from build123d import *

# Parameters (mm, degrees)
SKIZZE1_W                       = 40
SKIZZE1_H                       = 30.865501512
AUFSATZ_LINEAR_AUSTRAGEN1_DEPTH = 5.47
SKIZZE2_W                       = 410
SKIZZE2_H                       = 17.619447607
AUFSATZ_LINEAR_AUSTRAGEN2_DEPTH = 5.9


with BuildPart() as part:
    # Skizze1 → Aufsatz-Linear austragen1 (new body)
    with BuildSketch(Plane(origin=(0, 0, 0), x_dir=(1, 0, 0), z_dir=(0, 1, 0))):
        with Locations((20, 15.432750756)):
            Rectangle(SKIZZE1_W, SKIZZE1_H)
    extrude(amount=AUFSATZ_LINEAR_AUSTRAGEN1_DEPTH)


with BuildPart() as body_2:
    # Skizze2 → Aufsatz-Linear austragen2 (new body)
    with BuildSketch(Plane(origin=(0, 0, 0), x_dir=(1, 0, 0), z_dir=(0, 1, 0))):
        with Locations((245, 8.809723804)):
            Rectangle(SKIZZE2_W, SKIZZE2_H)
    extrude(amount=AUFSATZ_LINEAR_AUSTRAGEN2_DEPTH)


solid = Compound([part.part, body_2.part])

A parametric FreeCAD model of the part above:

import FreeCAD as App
import Part
import Sketcher
Q = App.Units.Quantity

doc = App.newDocument("Part")
body = doc.addObject("PartDesign::Body", "Body")

sketch1 = body.newObject("Sketcher::SketchObject", "Sketch")
sketch1.AttachmentSupport = (doc.getObject("XZ_Plane"), [""])
sketch1.MapMode = "FlatFace"
sketch1.addGeometry(Part.LineSegment(App.Vector(0, -31, 0), App.Vector(0, 0, 0)), False)
sketch1.addGeometry(Part.LineSegment(App.Vector(0, 0, 0), App.Vector(40, 0, 0)), False)
sketch1.addGeometry(Part.LineSegment(App.Vector(40, 0, 0), App.Vector(40, -31, 0)), False)
sketch1.addGeometry(Part.LineSegment(App.Vector(40, -31, 0), App.Vector(0, -31, 0)), False)
sketch1.addConstraint(Sketcher.Constraint("Coincident", 0, 2, 1, 1))
sketch1.addConstraint(Sketcher.Constraint("Coincident", 1, 2, 2, 1))
sketch1.addConstraint(Sketcher.Constraint("Coincident", 2, 2, 3, 1))
sketch1.addConstraint(Sketcher.Constraint("Coincident", 3, 2, 0, 1))
sketch1.addConstraint(Sketcher.Constraint("Vertical", 0))
sketch1.addConstraint(Sketcher.Constraint("Horizontal", 1))
sketch1.addConstraint(Sketcher.Constraint("Vertical", 2))
sketch1.addConstraint(Sketcher.Constraint("Horizontal", 3))
sketch1.addConstraint(Sketcher.Constraint("Coincident", 0, 2, -1, 1))
sketch1.addConstraint(Sketcher.Constraint("DistanceX", 1, 1, 1, 2, Q("40 mm")))
sketch1.addConstraint(Sketcher.Constraint("DistanceY", 0, 1, 0, 2, Q("30.865502 mm")))
pad1 = body.newObject("PartDesign::Pad", "Pad")
pad1.Profile = sketch1
pad1.Length = 5.47
pad1.Reversed = True
body2 = doc.addObject("PartDesign::Body", "Body001")

sketch2 = body2.newObject("Sketcher::SketchObject", "Sketch001")
sketch2.AttachmentSupport = (doc.getObject("XZ_Plane001"), [""])
sketch2.MapMode = "FlatFace"
sketch2.addGeometry(Part.LineSegment(App.Vector(40, -18, 0), App.Vector(40, 0, 0)), False)
sketch2.addGeometry(Part.LineSegment(App.Vector(40, 0, 0), App.Vector(450, 0, 0)), False)
sketch2.addGeometry(Part.LineSegment(App.Vector(450, 0, 0), App.Vector(450, -18, 0)), False)
sketch2.addGeometry(Part.LineSegment(App.Vector(450, -18, 0), App.Vector(40, -18, 0)), False)
sketch2.addConstraint(Sketcher.Constraint("Coincident", 0, 2, 1, 1))
sketch2.addConstraint(Sketcher.Constraint("Coincident", 1, 2, 2, 1))
sketch2.addConstraint(Sketcher.Constraint("Coincident", 2, 2, 3, 1))
sketch2.addConstraint(Sketcher.Constraint("Coincident", 3, 2, 0, 1))
sketch2.addConstraint(Sketcher.Constraint("Vertical", 0))
sketch2.addConstraint(Sketcher.Constraint("Horizontal", 1))
sketch2.addConstraint(Sketcher.Constraint("Vertical", 2))
sketch2.addConstraint(Sketcher.Constraint("Horizontal", 3))
sketch2.addConstraint(Sketcher.Constraint("PointOnObject", 0, 2, -1))
sketch2.addConstraint(Sketcher.Constraint("DistanceX", 1, 1, 1, 2, Q("410 mm")))
sketch2.addConstraint(Sketcher.Constraint("DistanceX", -1, 1, 0, 2, Q("40 mm")))
sketch2.addConstraint(Sketcher.Constraint("DistanceY", 0, 1, 0, 2, Q("17.619448 mm")))
pad2 = body2.newObject("PartDesign::Pad", "Pad001")
pad2.Profile = sketch2
pad2.Length = 5.9
pad2.Reversed = True

doc.recompute()
